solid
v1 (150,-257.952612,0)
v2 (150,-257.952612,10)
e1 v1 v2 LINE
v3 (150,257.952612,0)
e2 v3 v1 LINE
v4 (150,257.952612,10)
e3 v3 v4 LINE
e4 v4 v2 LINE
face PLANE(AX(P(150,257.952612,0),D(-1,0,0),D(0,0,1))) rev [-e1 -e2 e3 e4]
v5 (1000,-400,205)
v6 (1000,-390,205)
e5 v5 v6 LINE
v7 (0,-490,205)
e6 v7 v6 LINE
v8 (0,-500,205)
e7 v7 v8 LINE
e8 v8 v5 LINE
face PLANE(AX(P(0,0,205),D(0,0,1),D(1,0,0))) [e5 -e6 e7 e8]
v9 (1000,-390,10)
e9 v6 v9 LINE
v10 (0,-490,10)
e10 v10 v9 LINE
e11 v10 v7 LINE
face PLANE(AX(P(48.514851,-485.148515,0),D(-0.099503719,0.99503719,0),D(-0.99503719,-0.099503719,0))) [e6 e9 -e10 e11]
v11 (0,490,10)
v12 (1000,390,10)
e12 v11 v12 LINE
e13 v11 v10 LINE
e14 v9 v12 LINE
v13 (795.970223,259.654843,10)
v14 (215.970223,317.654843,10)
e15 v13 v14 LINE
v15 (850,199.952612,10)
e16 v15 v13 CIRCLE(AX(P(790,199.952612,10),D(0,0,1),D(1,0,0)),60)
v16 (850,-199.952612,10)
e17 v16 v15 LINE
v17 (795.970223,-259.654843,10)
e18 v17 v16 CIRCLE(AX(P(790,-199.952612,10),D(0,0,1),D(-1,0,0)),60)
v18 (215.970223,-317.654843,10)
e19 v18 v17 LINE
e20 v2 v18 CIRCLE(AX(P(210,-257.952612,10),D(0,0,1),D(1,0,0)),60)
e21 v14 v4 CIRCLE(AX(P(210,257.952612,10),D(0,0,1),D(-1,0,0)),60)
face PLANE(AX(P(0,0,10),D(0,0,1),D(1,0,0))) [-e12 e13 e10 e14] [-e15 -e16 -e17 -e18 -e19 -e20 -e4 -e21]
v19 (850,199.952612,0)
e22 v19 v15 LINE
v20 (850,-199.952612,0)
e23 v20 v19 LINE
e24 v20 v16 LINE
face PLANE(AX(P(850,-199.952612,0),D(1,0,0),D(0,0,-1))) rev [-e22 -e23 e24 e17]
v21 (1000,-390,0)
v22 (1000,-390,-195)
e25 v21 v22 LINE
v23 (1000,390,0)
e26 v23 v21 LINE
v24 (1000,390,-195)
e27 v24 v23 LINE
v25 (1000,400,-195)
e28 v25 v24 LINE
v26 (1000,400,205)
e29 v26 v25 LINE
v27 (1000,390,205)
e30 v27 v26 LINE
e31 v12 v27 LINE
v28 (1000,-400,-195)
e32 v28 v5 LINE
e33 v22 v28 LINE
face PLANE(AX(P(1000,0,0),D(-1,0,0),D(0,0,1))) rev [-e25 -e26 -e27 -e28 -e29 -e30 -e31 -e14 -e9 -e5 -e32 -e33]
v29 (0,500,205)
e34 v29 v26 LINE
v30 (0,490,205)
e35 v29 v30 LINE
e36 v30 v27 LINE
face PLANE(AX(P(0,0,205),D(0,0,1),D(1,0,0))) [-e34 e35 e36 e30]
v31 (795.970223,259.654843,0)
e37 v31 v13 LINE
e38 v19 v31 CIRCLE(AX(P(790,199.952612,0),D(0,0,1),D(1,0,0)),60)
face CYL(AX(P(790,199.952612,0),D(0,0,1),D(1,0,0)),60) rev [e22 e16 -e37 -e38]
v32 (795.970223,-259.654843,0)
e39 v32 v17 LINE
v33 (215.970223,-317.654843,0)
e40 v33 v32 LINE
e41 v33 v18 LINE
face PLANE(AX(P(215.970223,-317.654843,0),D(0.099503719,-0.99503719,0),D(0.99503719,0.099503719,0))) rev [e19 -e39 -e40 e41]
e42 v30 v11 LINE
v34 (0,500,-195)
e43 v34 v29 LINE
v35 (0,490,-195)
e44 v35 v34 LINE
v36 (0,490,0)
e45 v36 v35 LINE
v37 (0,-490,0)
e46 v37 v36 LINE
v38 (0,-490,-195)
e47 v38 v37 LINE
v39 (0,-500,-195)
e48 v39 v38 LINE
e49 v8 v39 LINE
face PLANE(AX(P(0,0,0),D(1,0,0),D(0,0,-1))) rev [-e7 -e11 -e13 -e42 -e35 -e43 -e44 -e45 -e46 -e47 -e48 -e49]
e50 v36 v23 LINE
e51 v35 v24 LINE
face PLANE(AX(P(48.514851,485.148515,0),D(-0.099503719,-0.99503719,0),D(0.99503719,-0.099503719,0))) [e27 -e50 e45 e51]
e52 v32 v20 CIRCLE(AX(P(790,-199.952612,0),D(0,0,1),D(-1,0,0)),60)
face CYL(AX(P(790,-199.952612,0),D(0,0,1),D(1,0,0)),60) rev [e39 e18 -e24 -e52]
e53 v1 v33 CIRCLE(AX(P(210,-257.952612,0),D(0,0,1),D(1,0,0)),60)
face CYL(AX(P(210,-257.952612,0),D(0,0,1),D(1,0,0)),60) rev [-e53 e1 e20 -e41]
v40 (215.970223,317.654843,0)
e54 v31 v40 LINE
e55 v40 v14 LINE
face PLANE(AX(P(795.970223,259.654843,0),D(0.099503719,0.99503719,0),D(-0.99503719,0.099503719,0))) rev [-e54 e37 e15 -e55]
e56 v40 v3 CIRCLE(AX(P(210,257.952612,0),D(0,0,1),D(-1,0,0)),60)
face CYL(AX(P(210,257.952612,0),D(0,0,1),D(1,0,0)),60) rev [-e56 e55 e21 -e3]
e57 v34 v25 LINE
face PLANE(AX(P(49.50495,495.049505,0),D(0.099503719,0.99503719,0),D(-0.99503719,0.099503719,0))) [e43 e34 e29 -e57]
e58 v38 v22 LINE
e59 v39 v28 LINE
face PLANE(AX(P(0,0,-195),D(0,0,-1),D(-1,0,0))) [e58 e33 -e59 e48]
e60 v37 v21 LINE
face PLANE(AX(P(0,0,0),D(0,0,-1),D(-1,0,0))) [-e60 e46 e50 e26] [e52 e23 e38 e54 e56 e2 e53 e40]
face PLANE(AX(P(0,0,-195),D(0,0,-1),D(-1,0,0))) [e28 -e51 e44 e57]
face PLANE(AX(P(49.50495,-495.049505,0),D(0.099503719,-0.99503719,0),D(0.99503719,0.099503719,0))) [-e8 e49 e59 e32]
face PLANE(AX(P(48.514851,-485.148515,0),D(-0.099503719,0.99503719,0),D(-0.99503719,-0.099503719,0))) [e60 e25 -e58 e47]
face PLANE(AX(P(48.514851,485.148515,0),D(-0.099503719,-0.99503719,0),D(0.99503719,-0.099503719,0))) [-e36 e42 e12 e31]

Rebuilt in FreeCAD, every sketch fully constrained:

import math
import FreeCAD as App
import Part
import Sketcher

V = App.Vector
Q = App.Units.Quantity


def add_polygon(sketch, points):
    """Adds a closed chain of lines whose ends are joined by coincident constraints."""
    first, n = sketch.GeometryCount, len(points)
    for a, b in zip(points, points[1:] + points[:1]):
        sketch.addGeometry(Part.LineSegment(App.Vector(*a, 0), App.Vector(*b, 0)), False)
    for i in range(n):
        sketch.addConstraint(Sketcher.Constraint("Coincident", first + i, 2, first + (i + 1) % n, 1))

doc = App.newDocument("Part")
body = doc.addObject("PartDesign::Body", "Body")

sketch1 = doc.addObject("Sketcher::SketchObject", "Sketch")
body.addObject(sketch1)
sketch1.AttachmentSupport = (doc.YZ_Plane, [""])
sketch1.MapMode = "FlatFace"
add_polygon(sketch1, [(500, -195), (500, 205), (490, 205), (490, 10), (-490, 10), (-490, 205), (-500, 205), (-500, -195), (-490, -195), (-490, 0), (490, 0), (490, -195)])
sketch1.addConstraint([
    Sketcher.Constraint("Vertical", 0),
    Sketcher.Constraint("Horizontal", 1),
    Sketcher.Constraint("Vertical", 2),
    Sketcher.Constraint("Horizontal", 3),
    Sketcher.Constraint("Vertical", 4),
    Sketcher.Constraint("Horizontal", 5),
    Sketcher.Constraint("Vertical", 6),
    Sketcher.Constraint("Horizontal", 7),
    Sketcher.Constraint("Vertical", 8),
    Sketcher.Constraint("Horizontal", 9),
    Sketcher.Constraint("Vertical", 10),
    Sketcher.Constraint("Horizontal", 11),
    Sketcher.Constraint("Symmetric", 8, 2, 9, 2, -1, 1),
    Sketcher.Constraint("Symmetric", 1, 2, 4, 2, -2),
    Sketcher.Constraint("Symmetric", 6, 2, 11, 2, -2),
    Sketcher.Constraint("Vertical", 4, 2, 7, 2),
    Sketcher.Constraint("Equal", 4, 8),
    Sketcher.Constraint("DistanceX", 1, 2, 1, 1, Q("10 mm")),
    Sketcher.Constraint("DistanceX", 3, 2, 3, 1, Q("980 mm")),
    Sketcher.Constraint("DistanceY", 0, 1, 0, 2, Q("400 mm")),
    Sketcher.Constraint("DistanceY", 2, 2, 2, 1, Q("195 mm")),
])

sketch2 = doc.addObject("Sketcher::SketchObject", "Sketch001")
body.addObject(sketch2)
sketch2.AttachmentSupport = (doc.YZ_Plane, [""])
sketch2.MapMode = "FlatFace"
sketch2.AttachmentOffset = App.Placement(V(0, 0, 1000), App.Rotation())
add_polygon(sketch2, [(400, 205), (400, -195), (390, -195), (390, 0), (-390, 0), (-390, -195), (-400, -195), (-400, 205), (-390, 205), (-390, 10), (390, 10), (390, 205)])
sketch2.addConstraint([
    Sketcher.Constraint("Vertical", 0),
    Sketcher.Constraint("Horizontal", 1),
    Sketcher.Constraint("Vertical", 2),
    Sketcher.Constraint("Horizontal", 3),
    Sketcher.Constraint("Vertical", 4),
    Sketcher.Constraint("Horizontal", 5),
    Sketcher.Constraint("Vertical", 6),
    Sketcher.Constraint("Horizontal", 7),
    Sketcher.Constraint("Vertical", 8),
    Sketcher.Constraint("Horizontal", 9),
    Sketcher.Constraint("Vertical", 10),
    Sketcher.Constraint("Horizontal", 11),
    Sketcher.Constraint("Symmetric", 2, 2, 3, 2, -1, 1),
    Sketcher.Constraint("Symmetric", 0, 2, 5, 2, -2),
    Sketcher.Constraint("Symmetric", 7, 2, 10, 2, -2),
    Sketcher.Constraint("Vertical", 4, 2, 7, 2),
    Sketcher.Constraint("Equal", 4, 8),
    Sketcher.Constraint("DistanceX", 1, 2, 1, 1, Q("10 mm")),
    Sketcher.Constraint("DistanceX", 3, 2, 3, 1, Q("780 mm")),
    Sketcher.Constraint("DistanceY", 0, 2, 0, 1, Q("400 mm")),
    Sketcher.Constraint("DistanceY", 2, 1, 2, 2, Q("195 mm")),
])

additiveloft = doc.addObject("PartDesign::AdditiveLoft", "AdditiveLoft")
body.addObject(additiveloft)
additiveloft.Profile = sketch1
additiveloft.Sections = [sketch2]

sketch3 = doc.addObject("Sketcher::SketchObject", "Sketch002")
body.addObject(sketch3)
sketch3.AttachmentSupport = (doc.XY_Plane, [""])
sketch3.MapMode = "FlatFace"
sketch3.AttachmentOffset = App.Placement(V(0, 0, 10), App.Rotation())
sketch3.addGeometry([
    Part.LineSegment(V(216, -318, 0), V(796, -260, 0)),
    Part.ArcOfCircle(Part.Circle(V(790, -200, 0), V(0, 0, 1), 60), math.radians(-84), math.radians(0)),
    Part.LineSegment(V(850, -200, 0), V(850, 200, 0)),
    Part.ArcOfCircle(Part.Circle(V(790, 200, 0), V(0, 0, 1), 60), math.radians(0), math.radians(84)),
    Part.LineSegment(V(796, 260, 0), V(216, 318, 0)),
    Part.ArcOfCircle(Part.Circle(V(210, 258, 0), V(0, 0, 1), 60), math.radians(84), math.radians(180)),
    Part.LineSegment(V(150, 258, 0), V(150, -258, 0)),
    Part.ArcOfCircle(Part.Circle(V(210, -258, 0), V(0, 0, 1), 60), math.radians(180), math.radians(276)),
], False)
sketch3.addConstraint([
    Sketcher.Constraint("Tangent", 0, 2, 1, 1),
    Sketcher.Constraint("Tangent", 1, 2, 2, 1),
    Sketcher.Constraint("Tangent", 2, 2, 3, 1),
    Sketcher.Constraint("Tangent", 3, 2, 4, 1),
    Sketcher.Constraint("Tangent", 4, 2, 5, 1),
    Sketcher.Constraint("Tangent", 5, 2, 6, 1),
    Sketcher.Constraint("Tangent", 6, 2, 7, 1),
    Sketcher.Constraint("Tangent", 7, 2, 0, 1),
    Sketcher.Constraint("Vertical", 2),
    Sketcher.Constraint("Vertical", 6),
    Sketcher.Constraint("Equal", 1, 3),
    Sketcher.Constraint("Equal", 3, 5),
    Sketcher.Constraint("Equal", 5, 7),
    Sketcher.Constraint("Equal", 0, 4),
    Sketcher.Constraint("Radius", 1, Q("60 mm")),
    Sketcher.Constraint("DistanceX", -1, 1, 1, 3, Q("790 mm")),
    Sketcher.Constraint("DistanceX", -1, 1, 5, 3, Q("210 mm")),
    Sketcher.Constraint("DistanceY", 3, 3, 5, 3, Q("58 mm")),
    Sketcher.Constraint("DistanceY", 2, 1, 2, 2, Q("399.905224 mm")),
    Sketcher.Constraint("DistanceY", 1, 3, -1, 1, Q("199.952612 mm")),
])
pocket1 = doc.addObject("PartDesign::Pocket", "Pocket")
body.addObject(pocket1)
pocket1.Profile = sketch3
pocket1.Length = 10

doc.recompute()
